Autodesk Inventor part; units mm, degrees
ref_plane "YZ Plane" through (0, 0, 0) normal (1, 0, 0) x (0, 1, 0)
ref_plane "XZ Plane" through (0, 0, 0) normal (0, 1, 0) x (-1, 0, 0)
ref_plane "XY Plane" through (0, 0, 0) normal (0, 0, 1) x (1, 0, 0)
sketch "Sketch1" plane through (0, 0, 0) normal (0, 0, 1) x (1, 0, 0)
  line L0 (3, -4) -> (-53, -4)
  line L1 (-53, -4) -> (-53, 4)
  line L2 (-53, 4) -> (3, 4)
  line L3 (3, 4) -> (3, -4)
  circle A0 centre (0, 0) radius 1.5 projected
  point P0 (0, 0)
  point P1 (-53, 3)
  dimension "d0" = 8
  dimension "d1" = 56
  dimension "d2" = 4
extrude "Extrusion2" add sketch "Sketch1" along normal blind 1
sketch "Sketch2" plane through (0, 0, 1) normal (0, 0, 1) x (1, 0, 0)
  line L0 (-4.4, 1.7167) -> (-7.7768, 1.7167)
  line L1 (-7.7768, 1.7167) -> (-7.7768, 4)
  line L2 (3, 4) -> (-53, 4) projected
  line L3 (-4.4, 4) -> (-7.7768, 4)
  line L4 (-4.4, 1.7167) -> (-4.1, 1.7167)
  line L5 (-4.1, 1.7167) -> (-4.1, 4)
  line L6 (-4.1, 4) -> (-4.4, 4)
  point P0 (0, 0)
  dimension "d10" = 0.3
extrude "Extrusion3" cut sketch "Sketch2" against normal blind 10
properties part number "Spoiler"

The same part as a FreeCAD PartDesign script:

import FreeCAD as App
import Part
import Sketcher


def add_polygon(sketch, points):
    """Adds a closed chain of lines whose ends are joined by coincident constraints."""
    first, n = sketch.GeometryCount, len(points)
    for a, b in zip(points, points[1:] + points[:1]):
        sketch.addGeometry(Part.LineSegment(App.Vector(*a, 0), App.Vector(*b, 0)), False)
    for i in range(n):
        sketch.addConstraint(Sketcher.Constraint("Coincident", first + i, 2, first + (i + 1) % n, 1))

doc = App.newDocument("Part")
params = doc.addObject("Spreadsheet::Sheet", "Params")
for row, (alias, value) in enumerate([
    ("sketch1_width", "56 mm"),
    ("sketch1_height", "8 mm"),
    ("sketch1_diameter", "3 mm"),
    ("pad1_length", "1 mm"),
    ("pocket1_length", "10 mm"),
], start=1):
    params.set(f"A{row}", alias)
    params.set(f"B{row}", "=" + value)
    params.setAlias(f"B{row}", alias)

body = doc.addObject("PartDesign::Body", "Body")

sketch1 = body.newObject("Sketcher::SketchObject", "Sketch")
sketch1.AttachmentSupport = (doc.getObject("XY_Plane"), [""])
sketch1.MapMode = "FlatFace"
add_polygon(sketch1, [(-53, -4), (3, -4), (3, 4), (-53, 4)])
sketch1.addGeometry(Part.Circle(App.Vector(0, 0, 0), App.Vector(0, 0, 1), 1.5), False)
sketch1.addConstraint([
    Sketcher.Constraint("Horizontal", 0),
    Sketcher.Constraint("Vertical", 1),
    Sketcher.Constraint("Horizontal", 2),
    Sketcher.Constraint("Vertical", 3),
    Sketcher.Constraint("Coincident", 4, 3, -1, 1),
    Sketcher.Constraint("DistanceX", 0, 1, 0, 2, 56.0),
    Sketcher.Constraint("DistanceY", 1, 1, 1, 2, 8.0),
    Sketcher.Constraint("Diameter", 4, 3.0),
    Sketcher.Constraint("DistanceY", 0, 2, -1, 1, 4.0),
    Sketcher.Constraint("DistanceX", -1, 1, 0, 2, 3.0),
])
sketch1.setExpression("Constraints[9]", "Params.sketch1_width")
sketch1.setExpression("Constraints[10]", "Params.sketch1_height")
sketch1.setExpression("Constraints[11]", "Params.sketch1_diameter")
pad1 = body.newObject("PartDesign::Pad", "Pad")
pad1.Profile = sketch1
pad1.setExpression("Length", "Params.pad1_length")

sketch2 = body.newObject("Sketcher::SketchObject", "Sketch001")
sketch2.AttachmentSupport = (doc.getObject("XY_Plane"), [""])
sketch2.MapMode = "FlatFace"
sketch2.AttachmentOffset = App.Placement(App.Vector(0, 0, 1), App.Rotation())
add_polygon(sketch2, [(-7.7768, 1.7167), (-4.1, 1.7167), (-4.1, 4), (-7.7768, 4)])
sketch2.addConstraint([
    Sketcher.Constraint("Horizontal", 0),
    Sketcher.Constraint("Vertical", 1),
    Sketcher.Constraint("Horizontal", 2),
    Sketcher.Constraint("Vertical", 3),
    Sketcher.Constraint("DistanceY", -1, 1, 1, 2, 4.0),
    Sketcher.Constraint("DistanceX", 0, 2, -1, 1, 4.1),
    Sketcher.Constraint("DistanceX", 0, 1, 0, 2, 3.6768),
    Sketcher.Constraint("DistanceY", 1, 1, 1, 2, 2.2833),
])
pocket1 = body.newObject("PartDesign::Pocket", "Pocket")
pocket1.Profile = sketch2
pocket1.setExpression("Length", "Params.pocket1_length")

doc.recompute()
